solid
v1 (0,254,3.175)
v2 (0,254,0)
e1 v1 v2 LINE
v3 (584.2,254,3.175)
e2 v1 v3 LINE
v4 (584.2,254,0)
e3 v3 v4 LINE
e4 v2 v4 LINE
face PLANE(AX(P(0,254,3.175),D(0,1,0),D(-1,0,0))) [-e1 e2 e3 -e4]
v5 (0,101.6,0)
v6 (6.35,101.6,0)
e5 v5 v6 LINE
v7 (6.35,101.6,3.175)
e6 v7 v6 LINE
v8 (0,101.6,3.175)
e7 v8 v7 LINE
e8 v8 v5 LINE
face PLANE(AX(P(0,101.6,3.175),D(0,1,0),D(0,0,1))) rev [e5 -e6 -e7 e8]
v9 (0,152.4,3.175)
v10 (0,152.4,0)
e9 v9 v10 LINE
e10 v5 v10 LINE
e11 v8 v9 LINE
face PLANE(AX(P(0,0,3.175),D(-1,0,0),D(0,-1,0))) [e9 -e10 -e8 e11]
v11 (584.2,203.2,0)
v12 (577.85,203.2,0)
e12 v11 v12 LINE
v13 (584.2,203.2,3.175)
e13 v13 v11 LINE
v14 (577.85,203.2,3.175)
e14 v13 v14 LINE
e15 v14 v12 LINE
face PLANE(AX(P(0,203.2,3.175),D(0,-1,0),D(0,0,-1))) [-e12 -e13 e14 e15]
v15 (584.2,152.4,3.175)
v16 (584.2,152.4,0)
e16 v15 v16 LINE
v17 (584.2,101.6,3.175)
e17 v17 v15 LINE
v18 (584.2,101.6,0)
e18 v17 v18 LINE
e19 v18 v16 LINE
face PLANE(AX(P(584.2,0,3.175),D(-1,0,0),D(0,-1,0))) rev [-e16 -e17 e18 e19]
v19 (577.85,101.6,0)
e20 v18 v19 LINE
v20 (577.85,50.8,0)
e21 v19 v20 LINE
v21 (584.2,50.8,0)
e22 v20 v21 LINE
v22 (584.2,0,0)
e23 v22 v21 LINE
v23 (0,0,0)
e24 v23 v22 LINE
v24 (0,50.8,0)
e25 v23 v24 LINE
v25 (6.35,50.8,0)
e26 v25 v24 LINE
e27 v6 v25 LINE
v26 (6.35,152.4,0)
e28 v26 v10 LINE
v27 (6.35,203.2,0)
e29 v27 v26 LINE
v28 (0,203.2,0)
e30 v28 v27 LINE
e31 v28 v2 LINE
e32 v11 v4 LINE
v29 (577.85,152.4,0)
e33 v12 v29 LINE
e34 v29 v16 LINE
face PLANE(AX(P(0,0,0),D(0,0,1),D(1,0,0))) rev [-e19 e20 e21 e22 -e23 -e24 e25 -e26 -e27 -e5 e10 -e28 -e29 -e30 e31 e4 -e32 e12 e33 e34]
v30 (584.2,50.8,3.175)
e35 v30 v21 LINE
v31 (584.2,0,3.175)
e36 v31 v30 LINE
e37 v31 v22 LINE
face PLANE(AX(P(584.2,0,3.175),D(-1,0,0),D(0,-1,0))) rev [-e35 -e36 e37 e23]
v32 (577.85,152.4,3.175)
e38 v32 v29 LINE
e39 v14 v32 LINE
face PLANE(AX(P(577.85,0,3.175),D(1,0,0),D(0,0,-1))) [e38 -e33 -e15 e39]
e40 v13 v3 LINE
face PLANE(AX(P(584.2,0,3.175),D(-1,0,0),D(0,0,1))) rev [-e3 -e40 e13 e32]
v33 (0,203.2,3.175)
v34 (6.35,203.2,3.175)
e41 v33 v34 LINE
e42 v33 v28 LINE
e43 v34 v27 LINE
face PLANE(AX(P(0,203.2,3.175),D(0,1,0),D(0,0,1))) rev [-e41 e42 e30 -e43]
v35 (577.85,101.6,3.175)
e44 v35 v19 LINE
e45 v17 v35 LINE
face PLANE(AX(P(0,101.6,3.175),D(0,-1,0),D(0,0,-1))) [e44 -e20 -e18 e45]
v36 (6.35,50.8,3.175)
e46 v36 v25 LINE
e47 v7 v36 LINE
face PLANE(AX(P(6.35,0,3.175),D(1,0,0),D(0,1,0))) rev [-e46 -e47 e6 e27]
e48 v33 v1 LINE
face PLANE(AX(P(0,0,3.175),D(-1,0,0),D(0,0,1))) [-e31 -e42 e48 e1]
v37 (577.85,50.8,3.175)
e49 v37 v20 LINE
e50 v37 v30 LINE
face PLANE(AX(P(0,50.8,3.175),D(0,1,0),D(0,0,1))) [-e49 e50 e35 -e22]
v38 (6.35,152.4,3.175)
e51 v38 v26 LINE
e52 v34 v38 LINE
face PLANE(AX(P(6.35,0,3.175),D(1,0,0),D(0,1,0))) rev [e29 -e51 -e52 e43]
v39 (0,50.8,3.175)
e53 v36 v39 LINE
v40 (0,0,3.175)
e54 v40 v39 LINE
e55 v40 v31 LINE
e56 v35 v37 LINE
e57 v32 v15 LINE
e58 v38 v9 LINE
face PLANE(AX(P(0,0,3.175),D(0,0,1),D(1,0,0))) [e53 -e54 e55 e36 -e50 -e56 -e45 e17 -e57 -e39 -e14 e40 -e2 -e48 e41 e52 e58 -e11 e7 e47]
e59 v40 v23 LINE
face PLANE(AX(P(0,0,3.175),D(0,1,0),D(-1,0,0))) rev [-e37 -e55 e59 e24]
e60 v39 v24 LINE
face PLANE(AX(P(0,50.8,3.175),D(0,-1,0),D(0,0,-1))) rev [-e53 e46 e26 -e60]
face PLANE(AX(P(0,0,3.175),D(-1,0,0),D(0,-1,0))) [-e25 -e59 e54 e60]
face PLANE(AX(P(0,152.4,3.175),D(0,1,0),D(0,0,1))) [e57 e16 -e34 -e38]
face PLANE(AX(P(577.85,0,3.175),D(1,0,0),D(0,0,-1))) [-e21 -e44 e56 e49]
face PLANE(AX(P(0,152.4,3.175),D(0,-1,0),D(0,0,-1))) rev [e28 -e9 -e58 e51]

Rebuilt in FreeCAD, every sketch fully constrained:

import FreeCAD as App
import Part
import Sketcher

V = App.Vector
Q = App.Units.Quantity

doc = App.newDocument("Part")
body = doc.addObject("PartDesign::Body", "Body")

sketch1 = doc.addObject("Sketcher::SketchObject", "Sketch")
body.addObject(sketch1)
sketch1.AttachmentSupport = (doc.XY_Plane, [""])
sketch1.MapMode = "FlatFace"
sketch1.addGeometry(Part.LineSegment(V(578, 102, 0), V(584, 102, 0)), False)
sketch1.addGeometry(Part.LineSegment(V(584, 102, 0), V(584, 152, 0)), False)
sketch1.addGeometry(Part.LineSegment(V(584, 152, 0), V(578, 152, 0)), False)
sketch1.addGeometry(Part.LineSegment(V(578, 152, 0), V(578, 203, 0)), False)
sketch1.addGeometry(Part.LineSegment(V(578, 203, 0), V(584, 203, 0)), False)
sketch1.addGeometry(Part.LineSegment(V(584, 203, 0), V(584, 254, 0)), False)
sketch1.addGeometry(Part.LineSegment(V(584, 254, 0), V(0, 254, 0)), False)
sketch1.addGeometry(Part.LineSegment(V(0, 254, 0), V(0, 203, 0)), False)
sketch1.addGeometry(Part.LineSegment(V(0, 203, 0), V(6, 203, 0)), False)
sketch1.addGeometry(Part.LineSegment(V(6, 203, 0), V(6, 152, 0)), False)
sketch1.addGeometry(Part.LineSegment(V(6, 152, 0), V(0, 152, 0)), False)
sketch1.addGeometry(Part.LineSegment(V(0, 152, 0), V(0, 102, 0)), False)
sketch1.addGeometry(Part.LineSegment(V(0, 102, 0), V(6, 102, 0)), False)
sketch1.addGeometry(Part.LineSegment(V(6, 102, 0), V(6, 51, 0)), False)
sketch1.addGeometry(Part.LineSegment(V(6, 51, 0), V(0, 51, 0)), False)
sketch1.addGeometry(Part.LineSegment(V(0, 51, 0), V(0, 0, 0)), False)
sketch1.addGeometry(Part.LineSegment(V(0, 0, 0), V(584, 0, 0)), False)
sketch1.addGeometry(Part.LineSegment(V(584, 0, 0), V(584, 51, 0)), False)
sketch1.addGeometry(Part.LineSegment(V(584, 51, 0), V(578, 51, 0)), False)
sketch1.addGeometry(Part.LineSegment(V(578, 51, 0), V(578, 102, 0)), False)
sketch1.addConstraint(Sketcher.Constraint("Coincident", 0, 2, 1, 1))
sketch1.addConstraint(Sketcher.Constraint("Coincident", 1, 2, 2, 1))
sketch1.addConstraint(Sketcher.Constraint("Coincident", 2, 2, 3, 1))
sketch1.addConstraint(Sketcher.Constraint("Coincident", 3, 2, 4, 1))
sketch1.addConstraint(Sketcher.Constraint("Coincident", 4, 2, 5, 1))
sketch1.addConstraint(Sketcher.Constraint("Coincident", 5, 2, 6, 1))
sketch1.addConstraint(Sketcher.Constraint("Coincident", 6, 2, 7, 1))
sketch1.addConstraint(Sketcher.Constraint("Coincident", 7, 2, 8, 1))
sketch1.addConstraint(Sketcher.Constraint("Coincident", 8, 2, 9, 1))
sketch1.addConstraint(Sketcher.Constraint("Coincident", 9, 2, 10, 1))
sketch1.addConstraint(Sketcher.Constraint("Coincident", 10, 2, 11, 1))
sketch1.addConstraint(Sketcher.Constraint("Coincident", 11, 2, 12, 1))
sketch1.addConstraint(Sketcher.Constraint("Coincident", 12, 2, 13, 1))
sketch1.addConstraint(Sketcher.Constraint("Coincident", 13, 2, 14, 1))
sketch1.addConstraint(Sketcher.Constraint("Coincident", 14, 2, 15, 1))
sketch1.addConstraint(Sketcher.Constraint("Coincident", 15, 2, 16, 1))
sketch1.addConstraint(Sketcher.Constraint("Coincident", 16, 2, 17, 1))
sketch1.addConstraint(Sketcher.Constraint("Coincident", 17, 2, 18, 1))
sketch1.addConstraint(Sketcher.Constraint("Coincident", 18, 2, 19, 1))
sketch1.addConstraint(Sketcher.Constraint("Coincident", 19, 2, 0, 1))
sketch1.addConstraint(Sketcher.Constraint("Horizontal", 0))
sketch1.addConstraint(Sketcher.Constraint("Vertical", 1))
sketch1.addConstraint(Sketcher.Constraint("Horizontal", 2))
sketch1.addConstraint(Sketcher.Constraint("Vertical", 3))
sketch1.addConstraint(Sketcher.Constraint("Horizontal", 4))
sketch1.addConstraint(Sketcher.Constraint("Vertical", 5))
sketch1.addConstraint(Sketcher.Constraint("Horizontal", 6))
sketch1.addConstraint(Sketcher.Constraint("Vertical", 7))
sketch1.addConstraint(Sketcher.Constraint("Horizontal", 8))
sketch1.addConstraint(Sketcher.Constraint("Vertical", 9))
sketch1.addConstraint(Sketcher.Constraint("Horizontal", 10))
sketch1.addConstraint(Sketcher.Constraint("Vertical", 11))
sketch1.addConstraint(Sketcher.Constraint("Horizontal", 12))
sketch1.addConstraint(Sketcher.Constraint("Vertical", 13))
sketch1.addConstraint(Sketcher.Constraint("Horizontal", 14))
sketch1.addConstraint(Sketcher.Constraint("Vertical", 15))
sketch1.addConstraint(Sketcher.Constraint("Horizontal", 16))
sketch1.addConstraint(Sketcher.Constraint("Vertical", 17))
sketch1.addConstraint(Sketcher.Constraint("Horizontal", 18))
sketch1.addConstraint(Sketcher.Constraint("Vertical", 19))
sketch1.addConstraint(Sketcher.Constraint("Coincident", 15, 2, -1, 1))
sketch1.addConstraint(Sketcher.Constraint("PointOnObject", 6, 2, -2))
sketch1.addConstraint(Sketcher.Constraint("PointOnObject", 10, 2, -2))
sketch1.addConstraint(Sketcher.Constraint("Horizontal", 4, 2, 7, 2))
sketch1.addConstraint(Sketcher.Constraint("Horizontal", 2, 2, 9, 2))
sketch1.addConstraint(Sketcher.Constraint("Horizontal", 0, 2, 11, 2))
sketch1.addConstraint(Sketcher.Constraint("Horizontal", 14, 2, 17, 2))
sketch1.addConstraint(Sketcher.Constraint("Vertical", 1, 2, 4, 2))
sketch1.addConstraint(Sketcher.Constraint("Vertical", 9, 2, 12, 2))
sketch1.addConstraint(Sketcher.Constraint("Vertical", 5, 2, 16, 2))
sketch1.addConstraint(Sketcher.Constraint("Vertical", 3, 2, 18, 2))
sketch1.addConstraint(Sketcher.Constraint("Equal", 4, 8))
sketch1.addConstraint(Sketcher.Constraint("Equal", 1, 3))
sketch1.addConstraint(Sketcher.Constraint("Equal", 3, 5))
sketch1.addConstraint(Sketcher.Constraint("Equal", 11, 13))
sketch1.addConstraint(Sketcher.Constraint("Equal", 13, 15))
sketch1.addConstraint(Sketcher.Constraint("DistanceX", 6, 2, 6, 1, Q("23 in")))
sketch1.addConstraint(Sketcher.Constraint("DistanceY", 1, 1, 1, 2, Q("2 in")))
sketch1.addConstraint(Sketcher.Constraint("DistanceX", 0, 1, 0, 2, Q("0.25 in")))
pad1 = doc.addObject("PartDesign::Pad", "Pad")
body.addObject(pad1)
pad1.Profile = sketch1
pad1.Length = Q("0.125 in")

doc.recompute()
